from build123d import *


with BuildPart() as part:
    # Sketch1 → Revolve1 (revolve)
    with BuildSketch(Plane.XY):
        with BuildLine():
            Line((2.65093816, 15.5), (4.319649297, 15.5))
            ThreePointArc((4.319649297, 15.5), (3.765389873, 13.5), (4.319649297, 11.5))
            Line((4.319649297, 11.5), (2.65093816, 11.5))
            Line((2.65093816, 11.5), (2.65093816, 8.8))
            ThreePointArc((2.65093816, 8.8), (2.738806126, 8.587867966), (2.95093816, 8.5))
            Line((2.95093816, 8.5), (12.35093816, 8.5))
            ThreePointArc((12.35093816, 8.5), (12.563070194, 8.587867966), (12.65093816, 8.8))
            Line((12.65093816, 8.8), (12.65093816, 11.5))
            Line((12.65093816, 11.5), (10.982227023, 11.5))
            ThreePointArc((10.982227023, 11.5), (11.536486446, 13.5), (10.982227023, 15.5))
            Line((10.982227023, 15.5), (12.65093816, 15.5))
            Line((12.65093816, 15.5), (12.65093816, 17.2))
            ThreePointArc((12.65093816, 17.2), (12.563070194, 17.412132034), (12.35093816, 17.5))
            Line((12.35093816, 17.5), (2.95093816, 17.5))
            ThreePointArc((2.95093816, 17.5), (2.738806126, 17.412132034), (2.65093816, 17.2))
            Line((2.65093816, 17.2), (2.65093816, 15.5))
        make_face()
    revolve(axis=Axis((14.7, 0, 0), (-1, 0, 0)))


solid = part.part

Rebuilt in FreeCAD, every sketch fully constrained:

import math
import FreeCAD as App
import Part
import Sketcher
Q = App.Units.Quantity

doc = App.newDocument("Part")
params = doc.addObject("Spreadsheet::Sheet", "Params")
for row, (alias, value) in enumerate([
    ("sketch1_radius", "0.3 mm"),
    ("sketch1_width", "9.4 mm"),
    ("sketch1_height", "2.7 mm"),
    ("sketch1_height2", "1.7 mm"),
    ("revolution_angle", "360 deg"),
], start=1):
    params.set(f"A{row}", alias)
    params.set(f"B{row}", "=" + value)
    params.setAlias(f"B{row}", alias)

body = doc.addObject("PartDesign::Body", "Body")

# Sketch on XY plane
sketch1 = body.newObject("Sketcher::SketchObject", "Sketch")
sketch1.AttachmentSupport = (doc.getObject("XY_Plane"), [""])
sketch1.MapMode = "FlatFace"
sketch1.addGeometry([
    Part.LineSegment(App.Vector(2.65, 15.5, 0), App.Vector(4.32, 15.5, 0)),  # 0
    Part.ArcOfCircle(Part.Circle(App.Vector(7.65, 13.5, 0), App.Vector(0, 0, 1), 3.89), math.radians(149), math.radians(211)),  # 1
    Part.LineSegment(App.Vector(4.32, 11.5, 0), App.Vector(2.65, 11.5, 0)),  # 2
    Part.LineSegment(App.Vector(2.65, 11.5, 0), App.Vector(2.65, 8.8, 0)),  # 3
    Part.ArcOfCircle(Part.Circle(App.Vector(2.95, 8.8, 0), App.Vector(0, 0, 1), 0.3), math.radians(-180), math.radians(-90)),  # 4
    Part.LineSegment(App.Vector(2.95, 8.5, 0), App.Vector(12.35, 8.5, 0)),  # 5
    Part.ArcOfCircle(Part.Circle(App.Vector(12.35, 8.8, 0), App.Vector(0, 0, 1), 0.3), math.radians(-90), math.radians(0)),  # 6
    Part.LineSegment(App.Vector(12.65, 8.8, 0), App.Vector(12.65, 11.5, 0)),  # 7
    Part.LineSegment(App.Vector(12.65, 11.5, 0), App.Vector(10.98, 11.5, 0)),  # 8
    Part.ArcOfCircle(Part.Circle(App.Vector(7.65, 13.5, 0), App.Vector(0, 0, 1), 3.89), math.radians(-31), math.radians(31)),  # 9
    Part.LineSegment(App.Vector(10.98, 15.5, 0), App.Vector(12.65, 15.5, 0)),  # 10
    Part.LineSegment(App.Vector(12.65, 15.5, 0), App.Vector(12.65, 17.2, 0)),  # 11
    Part.ArcOfCircle(Part.Circle(App.Vector(12.35, 17.2, 0), App.Vector(0, 0, 1), 0.3), math.radians(0), math.radians(90)),  # 12
    Part.LineSegment(App.Vector(12.35, 17.5, 0), App.Vector(2.95, 17.5, 0)),  # 13
    Part.ArcOfCircle(Part.Circle(App.Vector(2.95, 17.2, 0), App.Vector(0, 0, 1), 0.3), math.radians(90), math.radians(180)),  # 14
    Part.LineSegment(App.Vector(2.65, 17.2, 0), App.Vector(2.65, 15.5, 0)),  # 15
], False)
sketch1.addConstraint([
    Sketcher.Constraint("Coincident", 0, 2, 1, 1),
    Sketcher.Constraint("Coincident", 1, 2, 2, 1),
    Sketcher.Constraint("Coincident", 2, 2, 3, 1),
    Sketcher.Constraint("Tangent", 3, 2, 4, 1),
    Sketcher.Constraint("Tangent", 4, 2, 5, 1),
    Sketcher.Constraint("Tangent", 5, 2, 6, 1),
    Sketcher.Constraint("Tangent", 6, 2, 7, 1),
    Sketcher.Constraint("Coincident", 7, 2, 8, 1),
    Sketcher.Constraint("Coincident", 8, 2, 9, 1),
    Sketcher.Constraint("Coincident", 9, 2, 10, 1),
    Sketcher.Constraint("Coincident", 10, 2, 11, 1),
    Sketcher.Constraint("Tangent", 11, 2, 12, 1),
    Sketcher.Constraint("Tangent", 12, 2, 13, 1),
    Sketcher.Constraint("Tangent", 13, 2, 14, 1),
    Sketcher.Constraint("Tangent", 14, 2, 15, 1),
    Sketcher.Constraint("Coincident", 15, 2, 0, 1),
    Sketcher.Constraint("Horizontal", 0),
    Sketcher.Constraint("Horizontal", 2),
    Sketcher.Constraint("Vertical", 3),
    Sketcher.Constraint("Horizontal", 5),
    Sketcher.Constraint("Vertical", 7),
    Sketcher.Constraint("Horizontal", 8),
    Sketcher.Constraint("Horizontal", 10),
    Sketcher.Constraint("Vertical", 11),
    Sketcher.Constraint("Horizontal", 13),
    Sketcher.Constraint("Vertical", 15),
    Sketcher.Constraint("Coincident", 9, 3, 1, 3),
    Sketcher.Constraint("Equal", 4, 6),
    Sketcher.Constraint("Equal", 1, 9),
    Sketcher.Constraint("Equal", 6, 12),
    Sketcher.Constraint("Equal", 12, 14),
    Sketcher.Constraint("Horizontal", 2, 2, 7, 2),
    Sketcher.Constraint("Horizontal", 0, 2, 9, 2),
    Sketcher.Constraint("Vertical", 6, 3, 12, 3),
    Sketcher.Constraint("Vertical", 4, 3, 14, 3),
    Sketcher.Constraint("Vertical", 0, 2, 1, 2),
    Sketcher.Constraint("Equal", 2, 8),
    Sketcher.Constraint("Radius", 4, Q("0.3 mm")),
    Sketcher.Constraint("DistanceX", 5, 1, 5, 2, Q("9.4 mm")),
    Sketcher.Constraint("DistanceY", 3, 2, 3, 1, Q("2.7 mm")),
    Sketcher.Constraint("DistanceY", 11, 1, 11, 2, Q("1.7 mm")),
    Sketcher.Constraint("DistanceY", 9, 3, 0, 2, Q("2 mm")),
    Sketcher.Constraint("DistanceY", -1, 1, 1, 3, Q("13.5 mm")),
    Sketcher.Constraint("Radius", 1, Q("3.885548 mm")),
    Sketcher.Constraint("DistanceX", -1, 1, 1, 3, Q("7.650938 mm")),
])
sketch1.setExpression("Constraints[37]", "Params.sketch1_radius")
sketch1.setExpression("Constraints[38]", "Params.sketch1_width")
sketch1.setExpression("Constraints[39]", "Params.sketch1_height")
sketch1.setExpression("Constraints[40]", "Params.sketch1_height2")
revolution = body.newObject("PartDesign::Revolution", "Revolution")
revolution.Profile = sketch1
revolution.ReferenceAxis = (sketch1, ["H_Axis"])
revolution.setExpression("Angle", "Params.revolution_angle")

doc.recompute()
